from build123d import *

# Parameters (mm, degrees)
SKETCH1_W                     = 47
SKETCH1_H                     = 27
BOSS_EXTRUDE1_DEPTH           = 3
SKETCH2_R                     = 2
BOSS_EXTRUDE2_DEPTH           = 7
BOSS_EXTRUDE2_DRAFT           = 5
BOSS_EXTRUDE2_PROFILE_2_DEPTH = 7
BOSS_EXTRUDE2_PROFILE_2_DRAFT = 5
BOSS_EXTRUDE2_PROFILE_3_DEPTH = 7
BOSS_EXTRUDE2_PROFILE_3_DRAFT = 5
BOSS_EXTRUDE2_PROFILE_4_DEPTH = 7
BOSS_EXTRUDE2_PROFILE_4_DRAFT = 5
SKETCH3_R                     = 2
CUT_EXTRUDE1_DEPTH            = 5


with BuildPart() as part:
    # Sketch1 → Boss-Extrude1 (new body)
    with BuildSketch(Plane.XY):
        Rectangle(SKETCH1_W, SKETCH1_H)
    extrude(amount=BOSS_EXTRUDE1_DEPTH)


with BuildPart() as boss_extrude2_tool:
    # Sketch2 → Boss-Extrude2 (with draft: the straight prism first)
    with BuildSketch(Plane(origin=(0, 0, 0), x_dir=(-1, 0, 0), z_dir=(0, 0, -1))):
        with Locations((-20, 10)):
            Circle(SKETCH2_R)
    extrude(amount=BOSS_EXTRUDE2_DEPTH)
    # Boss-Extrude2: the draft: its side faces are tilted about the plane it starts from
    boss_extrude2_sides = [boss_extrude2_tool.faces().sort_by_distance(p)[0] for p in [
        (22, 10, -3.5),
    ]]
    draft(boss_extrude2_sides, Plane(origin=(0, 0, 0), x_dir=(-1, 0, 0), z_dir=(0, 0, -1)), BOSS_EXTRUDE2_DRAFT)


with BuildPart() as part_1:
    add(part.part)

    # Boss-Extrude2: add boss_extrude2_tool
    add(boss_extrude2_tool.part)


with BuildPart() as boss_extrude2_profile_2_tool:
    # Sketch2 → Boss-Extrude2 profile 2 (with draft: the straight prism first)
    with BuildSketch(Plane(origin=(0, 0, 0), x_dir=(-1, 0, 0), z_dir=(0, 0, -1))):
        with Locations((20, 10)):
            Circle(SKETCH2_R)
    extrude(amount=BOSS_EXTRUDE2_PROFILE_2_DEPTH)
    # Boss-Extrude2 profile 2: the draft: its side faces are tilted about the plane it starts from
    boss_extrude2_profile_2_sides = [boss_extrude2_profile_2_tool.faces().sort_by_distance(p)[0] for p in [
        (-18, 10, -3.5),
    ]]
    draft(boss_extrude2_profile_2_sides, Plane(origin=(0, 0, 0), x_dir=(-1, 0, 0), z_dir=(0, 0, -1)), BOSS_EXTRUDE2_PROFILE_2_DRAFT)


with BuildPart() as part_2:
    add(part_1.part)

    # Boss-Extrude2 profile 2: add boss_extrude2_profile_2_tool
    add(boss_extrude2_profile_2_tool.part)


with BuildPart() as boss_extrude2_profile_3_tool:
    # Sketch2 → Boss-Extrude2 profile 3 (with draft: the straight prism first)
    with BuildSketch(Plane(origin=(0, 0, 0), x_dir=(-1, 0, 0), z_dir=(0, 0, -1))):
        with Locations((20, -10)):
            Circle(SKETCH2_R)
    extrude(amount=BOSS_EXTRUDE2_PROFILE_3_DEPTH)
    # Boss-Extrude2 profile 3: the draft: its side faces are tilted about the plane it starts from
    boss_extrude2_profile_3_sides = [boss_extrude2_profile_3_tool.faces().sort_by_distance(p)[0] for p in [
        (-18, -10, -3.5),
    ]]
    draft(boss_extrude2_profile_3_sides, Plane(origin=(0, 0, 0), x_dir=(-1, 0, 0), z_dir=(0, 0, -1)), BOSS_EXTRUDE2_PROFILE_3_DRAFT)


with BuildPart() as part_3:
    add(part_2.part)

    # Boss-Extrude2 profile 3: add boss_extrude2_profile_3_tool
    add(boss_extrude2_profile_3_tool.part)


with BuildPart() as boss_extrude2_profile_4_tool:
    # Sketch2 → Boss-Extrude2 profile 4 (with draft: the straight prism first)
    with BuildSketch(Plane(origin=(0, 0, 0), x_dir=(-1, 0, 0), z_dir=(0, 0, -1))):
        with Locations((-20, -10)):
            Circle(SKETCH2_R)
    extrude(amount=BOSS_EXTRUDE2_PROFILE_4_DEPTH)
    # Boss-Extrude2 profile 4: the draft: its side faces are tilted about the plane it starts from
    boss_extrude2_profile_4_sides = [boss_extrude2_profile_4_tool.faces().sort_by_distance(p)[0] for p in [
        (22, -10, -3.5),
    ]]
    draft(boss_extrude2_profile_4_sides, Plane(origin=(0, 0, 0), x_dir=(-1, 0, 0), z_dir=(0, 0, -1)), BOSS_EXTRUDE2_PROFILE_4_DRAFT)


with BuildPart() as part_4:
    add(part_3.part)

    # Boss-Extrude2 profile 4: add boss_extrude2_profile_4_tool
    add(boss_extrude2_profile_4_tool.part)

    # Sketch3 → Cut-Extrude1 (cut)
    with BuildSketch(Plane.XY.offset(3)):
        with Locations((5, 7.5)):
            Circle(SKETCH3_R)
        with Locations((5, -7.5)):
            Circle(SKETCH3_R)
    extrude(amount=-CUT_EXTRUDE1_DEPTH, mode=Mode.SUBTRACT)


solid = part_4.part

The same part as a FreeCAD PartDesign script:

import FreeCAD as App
import Part
import Sketcher


def faces_at(feature, points):
    """Names of the faces that lie closest to the given points."""
    faces = feature.Shape.Faces
    near = lambda p: min(range(len(faces)), key=lambda i: faces[i].distToShape(Part.Vertex(*p))[0])
    return sorted({f"Face{near(p) + 1}" for p in points})

doc = App.newDocument("Part")
params = doc.addObject("Spreadsheet::Sheet", "Params")
for row, (alias, value) in enumerate([
    ("sketch1_width", "47 mm"),
    ("sketch1_height", "27 mm"),
    ("pad1_length", "3 mm"),
    ("sketch2_diameter", "4 mm"),
    ("pad2_length", "7 mm"),
    ("draft_angle", "5 deg"),
    ("sketch3_diameter", "4 mm"),
    ("pad3_length", "7 mm"),
    ("draft2_angle", "5 deg"),
    ("sketch4_diameter", "4 mm"),
    ("pad4_length", "7 mm"),
    ("draft3_angle", "5 deg"),
    ("sketch5_diameter", "4 mm"),
    ("pad5_length", "7 mm"),
    ("draft4_angle", "5 deg"),
    ("sketch6_diameter", "4 mm"),
    ("pocket1_length", "5 mm"),
], start=1):
    params.set(f"A{row}", alias)
    params.set(f"B{row}", "=" + value)
    params.setAlias(f"B{row}", alias)

body = doc.addObject("PartDesign::Body", "Body")

# Sketch on XY plane
sketch1 = doc.addObject("Sketcher::SketchObject", "Sketch")
body.addObject(sketch1)
sketch1.AttachmentSupport = (doc.XY_Plane, [""])
sketch1.MapMode = "FlatFace"
sketch1.addGeometry([
    Part.LineSegment(App.Vector(-24, 14, 0), App.Vector(-24, -14, 0)),
    Part.LineSegment(App.Vector(-24, -14, 0), App.Vector(24, -14, 0)),
    Part.LineSegment(App.Vector(24, -14, 0), App.Vector(24, 14, 0)),
    Part.LineSegment(App.Vector(24, 14, 0), App.Vector(-24, 14, 0)),
], False)
sketch1.addConstraint([
    Sketcher.Constraint("Coincident", 0, 2, 1, 1),
    Sketcher.Constraint("Coincident", 1, 2, 2, 1),
    Sketcher.Constraint("Coincident", 2, 2, 3, 1),
    Sketcher.Constraint("Coincident", 3, 2, 0, 1),
    Sketcher.Constraint("Vertical", 0),
    Sketcher.Constraint("Horizontal", 1),
    Sketcher.Constraint("Vertical", 2),
    Sketcher.Constraint("Horizontal", 3),
    Sketcher.Constraint("Symmetric", 0, 2, 2, 2, -1, 1),
    Sketcher.Constraint("DistanceX", 1, 1, 1, 2, 47.0),
    Sketcher.Constraint("DistanceY", 0, 2, 0, 1, 27.0),
])
sketch1.setExpression("Constraints[9]", "Params.sketch1_width")
sketch1.setExpression("Constraints[10]", "Params.sketch1_height")
pad1 = doc.addObject("PartDesign::Pad", "Pad")
body.addObject(pad1)
pad1.Profile = sketch1
pad1.setExpression("Length", "Params.pad1_length")
body2 = doc.addObject("PartDesign::Body", "Body001")

# Sketch on XY plane
sketch2 = doc.addObject("Sketcher::SketchObject", "Sketch001")
body2.addObject(sketch2)
sketch2.AttachmentSupport = (doc.getObject("XY_Plane001"), [""])
sketch2.MapMode = "FlatFace"
sketch2.addGeometry(Part.Circle(App.Vector(20, 10, 0), App.Vector(0, 0, 1), 2), False)
sketch2.addConstraint([
    Sketcher.Constraint("Diameter", 0, 4.0),
    Sketcher.Constraint("DistanceX", -1, 1, 0, 3, 20.0),
    Sketcher.Constraint("DistanceY", -1, 1, 0, 3, 10.0),
])
sketch2.setExpression("Constraints[0]", "Params.sketch2_diameter")
pad2 = doc.addObject("PartDesign::Pad", "Pad001")
body2.addObject(pad2)
pad2.Profile = sketch2
pad2.setExpression("Length", "Params.pad2_length")
pad2.Reversed = True
doc.recompute()

draft = doc.addObject("PartDesign::Draft", "Draft")
body2.addObject(draft)
draft.Base = (pad2, faces_at(pad2, [(22, 10, -3.5)]))
draft.NeutralPlane = (doc.getObject("XY_Plane001"), [""])
draft.setExpression("Angle", "Params.draft_angle")
draft.Reversed = True
doc.recompute()

boolean = doc.addObject("PartDesign::Boolean", "Boolean")
body.addObject(boolean)
boolean.Type = "Fuse"
boolean.addObjects([body2])
body3 = doc.addObject("PartDesign::Body", "Body002")

# Sketch on XY plane
sketch3 = doc.addObject("Sketcher::SketchObject", "Sketch002")
body3.addObject(sketch3)
sketch3.AttachmentSupport = (doc.getObject("XY_Plane002"), [""])
sketch3.MapMode = "FlatFace"
sketch3.addGeometry(Part.Circle(App.Vector(-20, 10, 0), App.Vector(0, 0, 1), 2), False)
sketch3.addConstraint([
    Sketcher.Constraint("Diameter", 0, 4.0),
    Sketcher.Constraint("DistanceX", 0, 3, -1, 1, 20.0),
    Sketcher.Constraint("DistanceY", -1, 1, 0, 3, 10.0),
])
sketch3.setExpression("Constraints[0]", "Params.sketch3_diameter")
pad3 = doc.addObject("PartDesign::Pad", "Pad002")
body3.addObject(pad3)
pad3.Profile = sketch3
pad3.setExpression("Length", "Params.pad3_length")
pad3.Reversed = True
doc.recompute()

draft2 = doc.addObject("PartDesign::Draft", "Draft001")
body3.addObject(draft2)
draft2.Base = (pad3, faces_at(pad3, [(-18, 10, -3.5)]))
draft2.NeutralPlane = (doc.getObject("XY_Plane002"), [""])
draft2.setExpression("Angle", "Params.draft2_angle")
draft2.Reversed = True
doc.recompute()

boolean2 = doc.addObject("PartDesign::Boolean", "Boolean001")
body.addObject(boolean2)
boolean2.Type = "Fuse"
boolean2.addObjects([body3])
body4 = doc.addObject("PartDesign::Body", "Body003")

# Sketch on XY plane
sketch4 = doc.addObject("Sketcher::SketchObject", "Sketch003")
body4.addObject(sketch4)
sketch4.AttachmentSupport = (doc.getObject("XY_Plane003"), [""])
sketch4.MapMode = "FlatFace"
sketch4.addGeometry(Part.Circle(App.Vector(-20, -10, 0), App.Vector(0, 0, 1), 2), False)
sketch4.addConstraint([
    Sketcher.Constraint("Diameter", 0, 4.0),
    Sketcher.Constraint("DistanceX", 0, 3, -1, 1, 20.0),
    Sketcher.Constraint("DistanceY", 0, 3, -1, 1, 10.0),
])
sketch4.setExpression("Constraints[0]", "Params.sketch4_diameter")
pad4 = doc.addObject("PartDesign::Pad", "Pad003")
body4.addObject(pad4)
pad4.Profile = sketch4
pad4.setExpression("Length", "Params.pad4_length")
pad4.Reversed = True
doc.recompute()

draft3 = doc.addObject("PartDesign::Draft", "Draft002")
body4.addObject(draft3)
draft3.Base = (pad4, faces_at(pad4, [(-18, -10, -3.5)]))
draft3.NeutralPlane = (doc.getObject("XY_Plane003"), [""])
draft3.setExpression("Angle", "Params.draft3_angle")
draft3.Reversed = True
doc.recompute()

boolean3 = doc.addObject("PartDesign::Boolean", "Boolean002")
body.addObject(boolean3)
boolean3.Type = "Fuse"
boolean3.addObjects([body4])
body5 = doc.addObject("PartDesign::Body", "Body004")

# Sketch on XY plane
sketch5 = doc.addObject("Sketcher::SketchObject", "Sketch004")
body5.addObject(sketch5)
sketch5.AttachmentSupport = (doc.getObject("XY_Plane004"), [""])
sketch5.MapMode = "FlatFace"
sketch5.addGeometry(Part.Circle(App.Vector(20, -10, 0), App.Vector(0, 0, 1), 2), False)
sketch5.addConstraint([
    Sketcher.Constraint("Diameter", 0, 4.0),
    Sketcher.Constraint("DistanceX", -1, 1, 0, 3, 20.0),
    Sketcher.Constraint("DistanceY", 0, 3, -1, 1, 10.0),
])
sketch5.setExpression("Constraints[0]", "Params.sketch5_diameter")
pad5 = doc.addObject("PartDesign::Pad", "Pad004")
body5.addObject(pad5)
pad5.Profile = sketch5
pad5.setExpression("Length", "Params.pad5_length")
pad5.Reversed = True
doc.recompute()

draft4 = doc.addObject("PartDesign::Draft", "Draft003")
body5.addObject(draft4)
draft4.Base = (pad5, faces_at(pad5, [(22, -10, -3.5)]))
draft4.NeutralPlane = (doc.getObject("XY_Plane004"), [""])
draft4.setExpression("Angle", "Params.draft4_angle")
draft4.Reversed = True
doc.recompute()

boolean4 = doc.addObject("PartDesign::Boolean", "Boolean003")
body.addObject(boolean4)
boolean4.Type = "Fuse"
boolean4.addObjects([body5])

# Sketch on XY plane
sketch6 = doc.addObject("Sketcher::SketchObject", "Sketch005")
body.addObject(sketch6)
sketch6.AttachmentSupport = (doc.XY_Plane, [""])
sketch6.MapMode = "FlatFace"
sketch6.AttachmentOffset = App.Placement(App.Vector(0, 0, 3), App.Rotation())
sketch6.addGeometry([
    Part.Circle(App.Vector(5, 7.5, 0), App.Vector(0, 0, 1), 2),
    Part.Circle(App.Vector(5, -7.5, 0), App.Vector(0, 0, 1), 2),
], False)
sketch6.addConstraint([
    Sketcher.Constraint("Equal", 0, 1),
    Sketcher.Constraint("Symmetric", 0, 3, 1, 3, -1),
    Sketcher.Constraint("Diameter", 0, 4.0),
    Sketcher.Constraint("DistanceX", -1, 1, 0, 3, 5.0),
    Sketcher.Constraint("DistanceY", 1, 3, 0, 3, 15.0),
])
sketch6.setExpression("Constraints[2]", "Params.sketch6_diameter")
pocket1 = doc.addObject("PartDesign::Pocket", "Pocket")
body.addObject(pocket1)
pocket1.Profile = sketch6
pocket1.setExpression("Length", "Params.pocket1_length")

doc.recompute()
